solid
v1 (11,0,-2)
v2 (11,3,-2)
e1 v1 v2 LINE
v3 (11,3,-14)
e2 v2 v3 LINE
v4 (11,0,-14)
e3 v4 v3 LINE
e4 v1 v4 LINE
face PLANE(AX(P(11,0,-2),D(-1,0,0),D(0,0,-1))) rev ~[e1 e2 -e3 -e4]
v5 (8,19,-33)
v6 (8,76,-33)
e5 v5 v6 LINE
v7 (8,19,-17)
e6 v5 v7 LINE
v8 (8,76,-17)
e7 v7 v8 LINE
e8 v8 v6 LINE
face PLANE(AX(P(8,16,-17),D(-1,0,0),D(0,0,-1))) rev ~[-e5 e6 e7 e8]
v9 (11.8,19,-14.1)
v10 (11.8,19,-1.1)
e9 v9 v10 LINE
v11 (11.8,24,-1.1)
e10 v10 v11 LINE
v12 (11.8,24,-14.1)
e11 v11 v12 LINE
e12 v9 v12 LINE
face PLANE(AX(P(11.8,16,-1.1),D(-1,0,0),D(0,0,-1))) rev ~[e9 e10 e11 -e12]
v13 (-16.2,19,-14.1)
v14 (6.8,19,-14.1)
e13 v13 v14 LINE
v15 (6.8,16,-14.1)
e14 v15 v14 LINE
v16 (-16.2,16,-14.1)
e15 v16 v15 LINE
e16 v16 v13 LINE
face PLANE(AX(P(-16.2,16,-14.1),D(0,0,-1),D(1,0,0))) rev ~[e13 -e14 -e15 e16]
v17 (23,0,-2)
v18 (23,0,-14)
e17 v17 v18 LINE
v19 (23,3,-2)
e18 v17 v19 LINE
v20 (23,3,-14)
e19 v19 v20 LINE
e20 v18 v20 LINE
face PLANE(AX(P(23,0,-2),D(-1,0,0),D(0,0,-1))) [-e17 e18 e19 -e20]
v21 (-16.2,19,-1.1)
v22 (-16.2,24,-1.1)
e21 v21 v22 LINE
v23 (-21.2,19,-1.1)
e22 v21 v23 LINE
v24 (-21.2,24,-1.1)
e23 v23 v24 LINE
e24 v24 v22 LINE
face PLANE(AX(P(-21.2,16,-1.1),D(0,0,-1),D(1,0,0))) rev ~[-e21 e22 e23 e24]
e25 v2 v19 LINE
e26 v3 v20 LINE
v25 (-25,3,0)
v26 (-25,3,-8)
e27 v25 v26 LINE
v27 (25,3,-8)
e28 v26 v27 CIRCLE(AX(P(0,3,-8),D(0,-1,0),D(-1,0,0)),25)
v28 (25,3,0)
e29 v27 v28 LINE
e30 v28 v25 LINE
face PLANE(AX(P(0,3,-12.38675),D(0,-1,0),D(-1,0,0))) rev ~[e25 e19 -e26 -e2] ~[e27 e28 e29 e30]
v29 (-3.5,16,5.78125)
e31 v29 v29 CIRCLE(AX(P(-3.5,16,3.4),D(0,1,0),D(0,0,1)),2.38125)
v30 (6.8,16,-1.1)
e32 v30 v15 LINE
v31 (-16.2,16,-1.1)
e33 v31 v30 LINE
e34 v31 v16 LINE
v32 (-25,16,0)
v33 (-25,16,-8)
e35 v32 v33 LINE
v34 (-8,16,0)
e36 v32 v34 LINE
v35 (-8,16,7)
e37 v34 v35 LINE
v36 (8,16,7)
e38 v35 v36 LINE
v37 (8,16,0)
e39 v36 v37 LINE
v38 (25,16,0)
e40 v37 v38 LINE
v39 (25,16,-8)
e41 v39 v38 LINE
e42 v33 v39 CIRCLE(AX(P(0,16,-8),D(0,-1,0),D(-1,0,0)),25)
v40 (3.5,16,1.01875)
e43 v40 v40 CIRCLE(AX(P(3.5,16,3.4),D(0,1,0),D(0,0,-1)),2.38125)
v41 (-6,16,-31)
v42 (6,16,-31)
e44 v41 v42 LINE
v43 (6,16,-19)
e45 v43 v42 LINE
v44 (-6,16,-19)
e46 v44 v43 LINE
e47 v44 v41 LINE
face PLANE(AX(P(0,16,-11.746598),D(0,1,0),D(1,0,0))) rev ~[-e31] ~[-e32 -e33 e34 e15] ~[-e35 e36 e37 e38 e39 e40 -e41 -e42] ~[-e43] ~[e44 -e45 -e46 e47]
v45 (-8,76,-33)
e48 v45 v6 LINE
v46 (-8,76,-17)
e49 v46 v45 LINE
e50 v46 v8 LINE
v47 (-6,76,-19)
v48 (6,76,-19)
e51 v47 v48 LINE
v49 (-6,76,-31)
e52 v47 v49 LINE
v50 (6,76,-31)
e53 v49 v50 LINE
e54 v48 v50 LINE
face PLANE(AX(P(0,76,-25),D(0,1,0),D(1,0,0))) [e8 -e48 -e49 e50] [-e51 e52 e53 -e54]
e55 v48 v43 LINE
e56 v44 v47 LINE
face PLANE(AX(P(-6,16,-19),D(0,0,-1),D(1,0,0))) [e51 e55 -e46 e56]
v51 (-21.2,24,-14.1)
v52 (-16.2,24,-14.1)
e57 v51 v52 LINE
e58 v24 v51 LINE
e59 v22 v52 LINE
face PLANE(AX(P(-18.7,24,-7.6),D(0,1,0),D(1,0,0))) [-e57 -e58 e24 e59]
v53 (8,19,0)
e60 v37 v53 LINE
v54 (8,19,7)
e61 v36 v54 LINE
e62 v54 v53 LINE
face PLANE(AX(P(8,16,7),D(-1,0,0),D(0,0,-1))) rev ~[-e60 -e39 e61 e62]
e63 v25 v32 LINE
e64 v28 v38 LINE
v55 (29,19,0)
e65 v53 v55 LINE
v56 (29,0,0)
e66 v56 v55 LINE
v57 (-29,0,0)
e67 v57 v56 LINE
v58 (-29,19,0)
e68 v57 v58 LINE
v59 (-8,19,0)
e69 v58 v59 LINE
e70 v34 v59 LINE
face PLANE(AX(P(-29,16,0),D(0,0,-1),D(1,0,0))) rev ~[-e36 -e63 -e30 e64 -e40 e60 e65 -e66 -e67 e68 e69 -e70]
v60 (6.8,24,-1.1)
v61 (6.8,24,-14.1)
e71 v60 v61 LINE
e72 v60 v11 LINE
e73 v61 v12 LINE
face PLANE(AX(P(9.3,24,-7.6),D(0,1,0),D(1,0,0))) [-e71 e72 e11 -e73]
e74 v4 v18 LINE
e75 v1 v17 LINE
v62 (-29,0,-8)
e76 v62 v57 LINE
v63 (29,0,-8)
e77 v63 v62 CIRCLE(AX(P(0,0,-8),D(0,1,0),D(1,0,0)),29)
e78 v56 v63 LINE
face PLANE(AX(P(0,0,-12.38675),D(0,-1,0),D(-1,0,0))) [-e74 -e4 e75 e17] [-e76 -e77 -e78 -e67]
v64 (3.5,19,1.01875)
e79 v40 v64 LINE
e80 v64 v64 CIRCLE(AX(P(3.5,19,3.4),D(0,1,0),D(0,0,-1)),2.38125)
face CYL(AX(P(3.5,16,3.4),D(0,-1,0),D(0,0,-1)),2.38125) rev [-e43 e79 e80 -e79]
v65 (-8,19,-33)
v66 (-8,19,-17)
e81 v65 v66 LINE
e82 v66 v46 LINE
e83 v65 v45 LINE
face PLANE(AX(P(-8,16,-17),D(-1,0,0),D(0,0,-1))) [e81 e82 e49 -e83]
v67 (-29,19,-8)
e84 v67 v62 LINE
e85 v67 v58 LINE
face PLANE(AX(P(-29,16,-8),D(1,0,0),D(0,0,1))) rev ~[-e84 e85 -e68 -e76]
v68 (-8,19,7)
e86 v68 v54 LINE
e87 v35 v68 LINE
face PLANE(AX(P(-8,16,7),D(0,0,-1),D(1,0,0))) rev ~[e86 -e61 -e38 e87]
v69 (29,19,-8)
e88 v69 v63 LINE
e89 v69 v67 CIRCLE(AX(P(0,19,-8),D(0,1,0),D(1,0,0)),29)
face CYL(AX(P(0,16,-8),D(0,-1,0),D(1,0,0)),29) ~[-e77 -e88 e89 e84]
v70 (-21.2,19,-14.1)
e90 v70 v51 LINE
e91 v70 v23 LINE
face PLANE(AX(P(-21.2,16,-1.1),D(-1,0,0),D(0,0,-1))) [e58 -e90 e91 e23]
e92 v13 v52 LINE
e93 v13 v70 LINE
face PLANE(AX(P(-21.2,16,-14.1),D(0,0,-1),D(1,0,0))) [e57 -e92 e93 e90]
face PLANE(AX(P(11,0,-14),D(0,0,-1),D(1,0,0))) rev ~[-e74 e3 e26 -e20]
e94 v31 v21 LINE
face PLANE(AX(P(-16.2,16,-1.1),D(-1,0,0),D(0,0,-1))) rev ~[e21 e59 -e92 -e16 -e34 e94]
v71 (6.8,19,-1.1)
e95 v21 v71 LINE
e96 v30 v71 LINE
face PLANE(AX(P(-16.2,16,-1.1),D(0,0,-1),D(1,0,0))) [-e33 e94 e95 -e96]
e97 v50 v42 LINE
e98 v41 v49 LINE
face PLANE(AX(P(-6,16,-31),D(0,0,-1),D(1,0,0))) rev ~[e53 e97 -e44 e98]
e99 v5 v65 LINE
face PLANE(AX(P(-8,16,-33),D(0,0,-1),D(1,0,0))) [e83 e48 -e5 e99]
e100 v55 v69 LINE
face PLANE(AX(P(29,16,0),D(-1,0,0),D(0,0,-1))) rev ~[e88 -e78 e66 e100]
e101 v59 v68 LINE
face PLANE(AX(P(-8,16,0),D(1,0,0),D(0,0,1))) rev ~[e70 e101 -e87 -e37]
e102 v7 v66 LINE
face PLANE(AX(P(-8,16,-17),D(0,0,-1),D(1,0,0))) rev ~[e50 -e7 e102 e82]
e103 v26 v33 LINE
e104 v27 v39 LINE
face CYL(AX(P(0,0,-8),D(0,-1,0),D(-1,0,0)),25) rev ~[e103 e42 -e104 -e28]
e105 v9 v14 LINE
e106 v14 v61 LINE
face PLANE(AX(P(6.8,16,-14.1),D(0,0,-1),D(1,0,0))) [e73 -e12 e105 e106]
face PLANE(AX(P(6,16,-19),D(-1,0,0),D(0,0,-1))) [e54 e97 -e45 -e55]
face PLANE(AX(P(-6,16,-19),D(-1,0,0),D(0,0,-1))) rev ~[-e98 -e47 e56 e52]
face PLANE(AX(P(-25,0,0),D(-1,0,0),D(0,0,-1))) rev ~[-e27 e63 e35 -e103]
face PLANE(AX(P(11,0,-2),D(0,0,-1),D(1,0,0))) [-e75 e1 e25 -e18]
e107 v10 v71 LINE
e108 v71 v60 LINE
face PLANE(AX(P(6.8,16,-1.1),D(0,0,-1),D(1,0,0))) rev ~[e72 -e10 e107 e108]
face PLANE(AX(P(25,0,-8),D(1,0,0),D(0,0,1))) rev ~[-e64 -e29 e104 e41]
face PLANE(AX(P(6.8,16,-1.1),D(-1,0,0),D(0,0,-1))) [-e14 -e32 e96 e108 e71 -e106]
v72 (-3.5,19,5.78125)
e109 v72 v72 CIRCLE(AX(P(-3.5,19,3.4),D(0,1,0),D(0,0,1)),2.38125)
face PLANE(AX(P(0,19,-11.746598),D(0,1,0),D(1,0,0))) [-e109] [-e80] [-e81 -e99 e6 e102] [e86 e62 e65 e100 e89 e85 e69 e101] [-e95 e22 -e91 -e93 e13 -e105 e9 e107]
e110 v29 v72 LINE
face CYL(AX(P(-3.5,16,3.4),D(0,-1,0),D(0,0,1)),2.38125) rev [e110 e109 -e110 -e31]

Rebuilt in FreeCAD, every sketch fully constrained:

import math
import FreeCAD as App
import Part
import Sketcher
Q = App.Units.Quantity


def add_polygon(sketch, points):
    """Adds a closed chain of lines whose ends are joined by coincident constraints."""
    first, n = sketch.GeometryCount, len(points)
    for a, b in zip(points, points[1:] + points[:1]):
        sketch.addGeometry(Part.LineSegment(App.Vector(*a, 0), App.Vector(*b, 0)), False)
    for i in range(n):
        sketch.addConstraint(Sketcher.Constraint("Coincident", first + i, 2, first + (i + 1) % n, 1))

doc = App.newDocument("Part")
body = doc.addObject("PartDesign::Body", "Body")

sketch1 = body.newObject("Sketcher::SketchObject", "Sketch")
sketch1.AttachmentSupport = (doc.getObject("XZ_Plane"), [""])
sketch1.MapMode = "FlatFace"
sketch1.addGeometry([
    Part.LineSegment(App.Vector(25, -8, 0), App.Vector(25, 0, 0)),
    Part.LineSegment(App.Vector(25, 0, 0), App.Vector(29, 0, 0)),
    Part.LineSegment(App.Vector(29, 0, 0), App.Vector(29, -8, 0)),
    Part.ArcOfCircle(Part.Circle(App.Vector(0, -8, 0), App.Vector(0, 0, 1), 29), math.radians(180), math.radians(360)),
    Part.LineSegment(App.Vector(-29, -8, 0), App.Vector(-29, 0, 0)),
    Part.LineSegment(App.Vector(-29, 0, 0), App.Vector(-25, 0, 0)),
    Part.LineSegment(App.Vector(-25, 0, 0), App.Vector(-25, -8, 0)),
    Part.ArcOfCircle(Part.Circle(App.Vector(0, -8, 0), App.Vector(0, 0, 1), 25), math.radians(180), math.radians(360)),
], False)
sketch1.addConstraint([
    Sketcher.Constraint("Coincident", 0, 2, 1, 1),
    Sketcher.Constraint("Coincident", 1, 2, 2, 1),
    Sketcher.Constraint("Tangent", 2, 2, 3, 2),
    Sketcher.Constraint("Tangent", 3, 1, 4, 1),
    Sketcher.Constraint("Coincident", 4, 2, 5, 1),
    Sketcher.Constraint("Coincident", 5, 2, 6, 1),
    Sketcher.Constraint("Tangent", 6, 2, 7, 1),
    Sketcher.Constraint("Tangent", 7, 2, 0, 1),
    Sketcher.Constraint("Vertical", 0),
    Sketcher.Constraint("Horizontal", 1),
    Sketcher.Constraint("Vertical", 2),
    Sketcher.Constraint("Vertical", 4),
    Sketcher.Constraint("Horizontal", 5),
    Sketcher.Constraint("Vertical", 6),
    Sketcher.Constraint("Coincident", 7, 3, 3, 3),
    Sketcher.Constraint("Symmetric", 1, 2, 4, 2, -1, 1),
    Sketcher.Constraint("PointOnObject", 0, 2, -1),
    Sketcher.Constraint("Radius", 3, Q("29 mm")),
    Sketcher.Constraint("Radius", 7, Q("25 mm")),
    Sketcher.Constraint("DistanceY", 0, 1, 0, 2, Q("8 mm")),
])
pad1 = body.newObject("PartDesign::Pad", "Pad")
pad1.Profile = sketch1
pad1.Length = 16
pad1.Reversed = True

sketch2 = body.newObject("Sketcher::SketchObject", "Sketch001")
sketch2.AttachmentSupport = (doc.getObject("XZ_Plane"), [""])
sketch2.MapMode = "FlatFace"
sketch2.addGeometry(Part.ArcOfCircle(Part.Circle(App.Vector(0, -8, 0), App.Vector(0, 0, 1), 25), math.radians(180), math.radians(360)), False)
sketch2.addGeometry(Part.LineSegment(App.Vector(-25, -8, 0), App.Vector(-25, 0, 0)), False)
sketch2.addGeometry(Part.LineSegment(App.Vector(-25, 0, 0), App.Vector(25, 0, 0)), False)
sketch2.addGeometry(Part.LineSegment(App.Vector(25, 0, 0), App.Vector(25, -8, 0)), False)
add_polygon(sketch2, [(11, -2), (11, -14), (23, -14), (23, -2)])
sketch2.addConstraint([
    Sketcher.Constraint("Tangent", 0, 1, 1, 1),
    Sketcher.Constraint("Coincident", 1, 2, 2, 1),
    Sketcher.Constraint("Coincident", 2, 2, 3, 1),
    Sketcher.Constraint("Tangent", 3, 2, 0, 2),
    Sketcher.Constraint("Vertical", 1),
    Sketcher.Constraint("Horizontal", 2),
    Sketcher.Constraint("Vertical", 3),
    Sketcher.Constraint("Vertical", 4),
    Sketcher.Constraint("Horizontal", 5),
    Sketcher.Constraint("Vertical", 6),
    Sketcher.Constraint("Horizontal", 7),
    Sketcher.Constraint("Symmetric", 1, 2, 2, 2, -1, 1),
    Sketcher.Constraint("Equal", 7, 4),
    Sketcher.Constraint("Radius", 0, Q("25 mm")),
    Sketcher.Constraint("DistanceX", 5, 1, 5, 2, Q("12 mm")),
    Sketcher.Constraint("DistanceY", 1, 1, 1, 2, Q("8 mm")),
    Sketcher.Constraint("DistanceX", -1, 1, 4, 2, Q("11 mm")),
    Sketcher.Constraint("DistanceY", 4, 2, -1, 1, Q("14 mm")),
])
pad2 = body.newObject("PartDesign::Pad", "Pad001")
pad2.Profile = sketch2
pad2.Length = 3
pad2.Reversed = True

sketch3 = body.newObject("Sketcher::SketchObject", "Sketch002")
sketch3.AttachmentSupport = (doc.getObject("XZ_Plane"), [""])
sketch3.MapMode = "FlatFace"
sketch3.AttachmentOffset = App.Placement(App.Vector(0, 0, -16), App.Rotation())
sketch3.addGeometry(Part.LineSegment(App.Vector(-29, -8, 0), App.Vector(-29, 0, 0)), False)
sketch3.addGeometry(Part.LineSegment(App.Vector(-29, 0, 0), App.Vector(-8, 0, 0)), False)
sketch3.addGeometry(Part.LineSegment(App.Vector(-8, 0, 0), App.Vector(-8, 7, 0)), False)
sketch3.addGeometry(Part.LineSegment(App.Vector(-8, 7, 0), App.Vector(8, 7, 0)), False)
sketch3.addGeometry(Part.LineSegment(App.Vector(8, 7, 0), App.Vector(8, 0, 0)), False)
sketch3.addGeometry(Part.LineSegment(App.Vector(8, 0, 0), App.Vector(29, 0, 0)), False)
sketch3.addGeometry(Part.LineSegment(App.Vector(29, 0, 0), App.Vector(29, -8, 0)), False)
sketch3.addGeometry(Part.ArcOfCircle(Part.Circle(App.Vector(0, -8, 0), App.Vector(0, 0, 1), 29), math.radians(180), math.radians(360)), False)
sketch3.addGeometry(Part.Circle(App.Vector(-3.5, 3.4, 0), App.Vector(0, 0, 1), 2.4), False)
sketch3.addGeometry(Part.Circle(App.Vector(3.5, 3.4, 0), App.Vector(0, 0, 1), 2.4), False)
add_polygon(sketch3, [(6.8, -1.1), (-16.2, -1.1), (-16.2, -14.1), (6.8, -14.1)])
add_polygon(sketch3, [(6, -19), (-6, -19), (-6, -31), (6, -31)])
sketch3.addConstraint([
    Sketcher.Constraint("Coincident", 0, 2, 1, 1),
    Sketcher.Constraint("Coincident", 1, 2, 2, 1),
    Sketcher.Constraint("Coincident", 2, 2, 3, 1),
    Sketcher.Constraint("Coincident", 3, 2, 4, 1),
    Sketcher.Constraint("Coincident", 4, 2, 5, 1),
    Sketcher.Constraint("Coincident", 5, 2, 6, 1),
    Sketcher.Constraint("Tangent", 6, 2, 7, 2),
    Sketcher.Constraint("Tangent", 7, 1, 0, 1),
    Sketcher.Constraint("Vertical", 0),
    Sketcher.Constraint("Horizontal", 1),
    Sketcher.Constraint("Vertical", 2),
    Sketcher.Constraint("Horizontal", 3),
    Sketcher.Constraint("Vertical", 4),
    Sketcher.Constraint("Horizontal", 5),
    Sketcher.Constraint("Vertical", 6),
    Sketcher.Constraint("Horizontal", 10),
    Sketcher.Constraint("Vertical", 11),
    Sketcher.Constraint("Horizontal", 12),
    Sketcher.Constraint("Vertical", 13),
    Sketcher.Constraint("Horizontal", 14),
    Sketcher.Constraint("Vertical", 15),
    Sketcher.Constraint("Horizontal", 16),
    Sketcher.Constraint("Vertical", 17),
    Sketcher.Constraint("Equal", 8, 9),
    Sketcher.Constraint("Symmetric", 1, 2, 4, 2, -1, 1),
    Sketcher.Constraint("Symmetric", 8, 3, 9, 3, -2),
    Sketcher.Constraint("Symmetric", 0, 2, 5, 2, -2),
    Sketcher.Constraint("Equal", 16, 15),
    Sketcher.Constraint("Radius", 7, Q("29 mm")),
    Sketcher.Constraint("DistanceX", 1, 1, 1, 2, Q("21 mm")),
    Sketcher.Constraint("DistanceX", 10, 2, 10, 1, Q("23 mm")),
    Sketcher.Constraint("DistanceX", 14, 2, 14, 1, Q("12 mm")),
    Sketcher.Constraint("DistanceY", 0, 1, 0, 2, Q("8 mm")),
    Sketcher.Constraint("DistanceY", 2, 1, 2, 2, Q("7 mm")),
    Sketcher.Constraint("DistanceY", 11, 2, 11, 1, Q("13 mm")),
    Sketcher.Constraint("DistanceX", 14, 2, -1, 1, Q("6 mm")),
    Sketcher.Constraint("DistanceY", 14, 2, -1, 1, Q("19 mm")),
    Sketcher.Constraint("DistanceX", 8, 3, 9, 3, Q("7 mm")),
    Sketcher.Constraint("Diameter", 8, Q("4.7625 mm")),
    Sketcher.Constraint("DistanceY", -1, 1, 8, 3, Q("3.4 mm")),
    Sketcher.Constraint("DistanceX", 10, 2, -1, 1, Q("16.2 mm")),
    Sketcher.Constraint("DistanceY", 10, 2, -1, 1, Q("1.1 mm")),
])
pad3 = body.newObject("PartDesign::Pad", "Pad002")
pad3.Profile = sketch3
pad3.Length = 3
pad3.Reversed = True

sketch4 = body.newObject("Sketcher::SketchObject", "Sketch003")
sketch4.AttachmentSupport = (doc.getObject("XZ_Plane"), [""])
sketch4.MapMode = "FlatFace"
sketch4.AttachmentOffset = App.Placement(App.Vector(0, 0, -16), App.Rotation())
add_polygon(sketch4, [(-8, -33), (-8, -17), (8, -17), (8, -33)])
add_polygon(sketch4, [(6, -19), (-6, -19), (-6, -31), (6, -31)])
sketch4.addConstraint([
    Sketcher.Constraint("Vertical", 0),
    Sketcher.Constraint("Horizontal", 1),
    Sketcher.Constraint("Vertical", 2),
    Sketcher.Constraint("Horizontal", 3),
    Sketcher.Constraint("Horizontal", 4),
    Sketcher.Constraint("Vertical", 5),
    Sketcher.Constraint("Horizontal", 6),
    Sketcher.Constraint("Vertical", 7),
    Sketcher.Constraint("Equal", 3, 0),
    Sketcher.Constraint("Equal", 6, 5),
    Sketcher.Constraint("DistanceX", 1, 1, 1, 2, Q("16 mm")),
    Sketcher.Constraint("DistanceX", 4, 2, 4, 1, Q("12 mm")),
    Sketcher.Constraint("DistanceX", 0, 2, -1, 1, Q("8 mm")),
    Sketcher.Constraint("DistanceY", 0, 2, -1, 1, Q("17 mm")),
    Sketcher.Constraint("DistanceX", 4, 2, -1, 1, Q("6 mm")),
    Sketcher.Constraint("DistanceY", 4, 2, -1, 1, Q("19 mm")),
])
pad4 = body.newObject("PartDesign::Pad", "Pad003")
pad4.Profile = sketch4
pad4.Length = 60
pad4.Reversed = True

sketch5 = body.newObject("Sketcher::SketchObject", "Sketch004")
sketch5.AttachmentSupport = (doc.getObject("XZ_Plane"), [""])
sketch5.MapMode = "FlatFace"
sketch5.AttachmentOffset = App.Placement(App.Vector(0, 0, -16), App.Rotation())
add_polygon(sketch5, [(-21, -14), (-21, -1), (-16, -1), (-16, -14)])
add_polygon(sketch5, [(7, -14), (7, -1), (12, -1), (12, -14)])
sketch5.addConstraint([
    Sketcher.Constraint("Vertical", 0),
    Sketcher.Constraint("Horizontal", 1),
    Sketcher.Constraint("Vertical", 2),
    Sketcher.Constraint("Horizontal", 3),
    Sketcher.Constraint("Vertical", 4),
    Sketcher.Constraint("Horizontal", 5),
    Sketcher.Constraint("Vertical", 6),
    Sketcher.Constraint("Horizontal", 7),
    Sketcher.Constraint("Horizontal", 1, 2, 4, 2),
    Sketcher.Constraint("Horizontal", 3, 2, 6, 2),
    Sketcher.Constraint("Equal", 3, 5),
    Sketcher.Constraint("DistanceX", 1, 1, 1, 2, Q("5 mm")),
    Sketcher.Constraint("DistanceY", 0, 1, 0, 2, Q("13 mm")),
    Sketcher.Constraint("DistanceX", 1, 2, 4, 2, Q("23 mm")),
    Sketcher.Constraint("DistanceX", 0, 2, -1, 1, Q("21.2 mm")),
    Sketcher.Constraint("DistanceY", 0, 2, -1, 1, Q("1.1 mm")),
])
pad5 = body.newObject("PartDesign::Pad", "Pad004")
pad5.Profile = sketch5
pad5.Length = 8
pad5.Reversed = True

doc.recompute()
